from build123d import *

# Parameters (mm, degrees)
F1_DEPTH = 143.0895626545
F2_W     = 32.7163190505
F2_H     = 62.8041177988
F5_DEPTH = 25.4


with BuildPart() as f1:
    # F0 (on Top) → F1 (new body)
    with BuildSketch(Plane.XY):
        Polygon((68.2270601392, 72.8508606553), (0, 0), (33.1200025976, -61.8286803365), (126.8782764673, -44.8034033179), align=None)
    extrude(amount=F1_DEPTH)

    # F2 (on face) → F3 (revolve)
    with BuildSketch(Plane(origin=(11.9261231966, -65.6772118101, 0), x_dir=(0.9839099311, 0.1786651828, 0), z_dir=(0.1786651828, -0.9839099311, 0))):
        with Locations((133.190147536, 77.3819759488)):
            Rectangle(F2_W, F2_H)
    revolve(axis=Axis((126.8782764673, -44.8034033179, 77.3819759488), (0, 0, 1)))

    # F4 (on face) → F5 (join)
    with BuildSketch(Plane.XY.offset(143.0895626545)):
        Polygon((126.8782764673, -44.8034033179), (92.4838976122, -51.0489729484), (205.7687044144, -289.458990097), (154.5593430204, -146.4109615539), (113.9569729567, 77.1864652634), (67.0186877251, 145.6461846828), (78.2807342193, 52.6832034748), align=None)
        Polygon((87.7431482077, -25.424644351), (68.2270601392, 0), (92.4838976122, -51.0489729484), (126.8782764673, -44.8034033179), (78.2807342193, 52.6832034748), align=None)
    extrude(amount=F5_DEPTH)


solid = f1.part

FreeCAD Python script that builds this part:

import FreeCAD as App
import Part
import Sketcher
Q = App.Units.Quantity


def add_polygon(sketch, points):
    """Adds a closed chain of lines whose ends are joined by coincident constraints."""
    first, n = sketch.GeometryCount, len(points)
    for a, b in zip(points, points[1:] + points[:1]):
        sketch.addGeometry(Part.LineSegment(App.Vector(*a, 0), App.Vector(*b, 0)), False)
    for i in range(n):
        sketch.addConstraint(Sketcher.Constraint("Coincident", first + i, 2, first + (i + 1) % n, 1))

doc = App.newDocument("Part")
body = doc.addObject("PartDesign::Body", "Body")

# Sketch on XY plane
sketch1 = body.newObject("Sketcher::SketchObject", "Sketch")
sketch1.AttachmentSupport = (doc.getObject("XY_Plane"), [""])
sketch1.MapMode = "FlatFace"
add_polygon(sketch1, [(68, 73), (0, 0), (33, -62), (127, -45)])  # lines 0-3
sketch1.addConstraint([
    Sketcher.Constraint("Coincident", 0, 2, -1, 1),
    Sketcher.Constraint("DistanceY", 1, 2, -1, 1, Q("2.4342 in")),
    Sketcher.Constraint("Distance", 0, Q("99.810719 mm")),
    Sketcher.Constraint("Distance", 2, Q("95.291521 mm")),
    Sketcher.Constraint("Distance", 3, Q("131.462888 mm")),
    Sketcher.Constraint("DistanceX", -1, 1, 3, 2, Q("68.22706 mm")),
    Sketcher.Constraint("Distance", 1, Q("70.140718 mm")),
])
pad1 = body.newObject("PartDesign::Pad", "Pad")
pad1.Profile = sketch1
pad1.Length = 143.089563

# Sketch on an angled plane
sketch2 = body.newObject("Sketcher::SketchObject", "Sketch001")
sketch2.Placement = App.Placement(App.Vector(11.926123, -65.677212, 0), App.Rotation(App.Vector(0.983909931, 0.178665183, 0), App.Vector(0, 0, 1), App.Vector(0.178665183, -0.983909931, 0), "ZXY"))
add_polygon(sketch2, [(117, 109), (117, 46), (150, 46), (150, 109)])  # lines 0-3
sketch2.addGeometry(Part.LineSegment(App.Vector(117, 46, 0), App.Vector(117, 109, 0)), True)  # axis
sketch2.addConstraint([
    Sketcher.Constraint("Vertical", 0),
    Sketcher.Constraint("Horizontal", 1),
    Sketcher.Constraint("Vertical", 2),
    Sketcher.Constraint("Horizontal", 3),
    Sketcher.Constraint("Vertical", 4),
    Sketcher.Constraint("Coincident", 4, 1, 0, 2),
    Sketcher.Constraint("Horizontal", 2, 2, 4, 2),
    Sketcher.Constraint("DistanceX", 1, 1, 1, 2, Q("32.716319 mm")),
    Sketcher.Constraint("DistanceY", 0, 2, 0, 1, Q("62.804118 mm")),
    Sketcher.Constraint("DistanceX", -1, 1, 0, 2, Q("116.831988 mm")),
    Sketcher.Constraint("DistanceY", -1, 1, 0, 2, Q("45.979917 mm")),
])
revolution = body.newObject("PartDesign::Revolution", "Revolution")
revolution.Profile = sketch2
revolution.ReferenceAxis = (sketch2, ["Axis0"])
revolution.Angle = 360

# Sketch on XY plane
sketch3 = body.newObject("Sketcher::SketchObject", "Sketch002")
sketch3.AttachmentSupport = (doc.getObject("XY_Plane"), [""])
sketch3.MapMode = "FlatFace"
sketch3.AttachmentOffset = App.Placement(App.Vector(0, 0, 143.089563), App.Rotation())
add_polygon(sketch3, [(206, -289), (155, -146), (114, 77), (67, 146), (78, 53), (88, -25), (68, 0)])  # lines 0-6
sketch3.addConstraint([
    Sketcher.Constraint("PointOnObject", 5, 2, -1),
    Sketcher.Constraint("Parallel", 3, 4),
    Sketcher.Constraint("Distance", 0, Q("151.937939 mm")),
    Sketcher.Constraint("Distance", 1, Q("227.253959 mm")),
    Sketcher.Constraint("Distance", 3, Q("93.64267 mm")),
    Sketcher.Constraint("Distance", 5, Q("32.051369 mm")),
    Sketcher.Constraint("DistanceY", 0, 2, -1, 1, Q("146.410962 mm")),
    Sketcher.Constraint("DistanceX", -1, 1, 4, 2, Q("87.743148 mm")),
    Sketcher.Constraint("DistanceX", -1, 1, 5, 2, Q("68.22706 mm")),
    Sketcher.Constraint("DistanceY", 6, 2, -1, 1, Q("289.45899 mm")),
    Sketcher.Constraint("DistanceX", 1, 2, 0, 2, Q("40.60237 mm")),
    Sketcher.Constraint("DistanceY", 1, 2, 2, 2, Q("68.459719 mm")),
    Sketcher.Constraint("DistanceX", 3, 2, 1, 2, Q("35.676239 mm")),
    Sketcher.Constraint("DistanceY", 3, 2, 1, 2, Q("24.503262 mm")),
])
pad2 = body.newObject("PartDesign::Pad", "Pad001")
pad2.Profile = sketch3
pad2.Length = Q("1 in")

doc.recompute()
